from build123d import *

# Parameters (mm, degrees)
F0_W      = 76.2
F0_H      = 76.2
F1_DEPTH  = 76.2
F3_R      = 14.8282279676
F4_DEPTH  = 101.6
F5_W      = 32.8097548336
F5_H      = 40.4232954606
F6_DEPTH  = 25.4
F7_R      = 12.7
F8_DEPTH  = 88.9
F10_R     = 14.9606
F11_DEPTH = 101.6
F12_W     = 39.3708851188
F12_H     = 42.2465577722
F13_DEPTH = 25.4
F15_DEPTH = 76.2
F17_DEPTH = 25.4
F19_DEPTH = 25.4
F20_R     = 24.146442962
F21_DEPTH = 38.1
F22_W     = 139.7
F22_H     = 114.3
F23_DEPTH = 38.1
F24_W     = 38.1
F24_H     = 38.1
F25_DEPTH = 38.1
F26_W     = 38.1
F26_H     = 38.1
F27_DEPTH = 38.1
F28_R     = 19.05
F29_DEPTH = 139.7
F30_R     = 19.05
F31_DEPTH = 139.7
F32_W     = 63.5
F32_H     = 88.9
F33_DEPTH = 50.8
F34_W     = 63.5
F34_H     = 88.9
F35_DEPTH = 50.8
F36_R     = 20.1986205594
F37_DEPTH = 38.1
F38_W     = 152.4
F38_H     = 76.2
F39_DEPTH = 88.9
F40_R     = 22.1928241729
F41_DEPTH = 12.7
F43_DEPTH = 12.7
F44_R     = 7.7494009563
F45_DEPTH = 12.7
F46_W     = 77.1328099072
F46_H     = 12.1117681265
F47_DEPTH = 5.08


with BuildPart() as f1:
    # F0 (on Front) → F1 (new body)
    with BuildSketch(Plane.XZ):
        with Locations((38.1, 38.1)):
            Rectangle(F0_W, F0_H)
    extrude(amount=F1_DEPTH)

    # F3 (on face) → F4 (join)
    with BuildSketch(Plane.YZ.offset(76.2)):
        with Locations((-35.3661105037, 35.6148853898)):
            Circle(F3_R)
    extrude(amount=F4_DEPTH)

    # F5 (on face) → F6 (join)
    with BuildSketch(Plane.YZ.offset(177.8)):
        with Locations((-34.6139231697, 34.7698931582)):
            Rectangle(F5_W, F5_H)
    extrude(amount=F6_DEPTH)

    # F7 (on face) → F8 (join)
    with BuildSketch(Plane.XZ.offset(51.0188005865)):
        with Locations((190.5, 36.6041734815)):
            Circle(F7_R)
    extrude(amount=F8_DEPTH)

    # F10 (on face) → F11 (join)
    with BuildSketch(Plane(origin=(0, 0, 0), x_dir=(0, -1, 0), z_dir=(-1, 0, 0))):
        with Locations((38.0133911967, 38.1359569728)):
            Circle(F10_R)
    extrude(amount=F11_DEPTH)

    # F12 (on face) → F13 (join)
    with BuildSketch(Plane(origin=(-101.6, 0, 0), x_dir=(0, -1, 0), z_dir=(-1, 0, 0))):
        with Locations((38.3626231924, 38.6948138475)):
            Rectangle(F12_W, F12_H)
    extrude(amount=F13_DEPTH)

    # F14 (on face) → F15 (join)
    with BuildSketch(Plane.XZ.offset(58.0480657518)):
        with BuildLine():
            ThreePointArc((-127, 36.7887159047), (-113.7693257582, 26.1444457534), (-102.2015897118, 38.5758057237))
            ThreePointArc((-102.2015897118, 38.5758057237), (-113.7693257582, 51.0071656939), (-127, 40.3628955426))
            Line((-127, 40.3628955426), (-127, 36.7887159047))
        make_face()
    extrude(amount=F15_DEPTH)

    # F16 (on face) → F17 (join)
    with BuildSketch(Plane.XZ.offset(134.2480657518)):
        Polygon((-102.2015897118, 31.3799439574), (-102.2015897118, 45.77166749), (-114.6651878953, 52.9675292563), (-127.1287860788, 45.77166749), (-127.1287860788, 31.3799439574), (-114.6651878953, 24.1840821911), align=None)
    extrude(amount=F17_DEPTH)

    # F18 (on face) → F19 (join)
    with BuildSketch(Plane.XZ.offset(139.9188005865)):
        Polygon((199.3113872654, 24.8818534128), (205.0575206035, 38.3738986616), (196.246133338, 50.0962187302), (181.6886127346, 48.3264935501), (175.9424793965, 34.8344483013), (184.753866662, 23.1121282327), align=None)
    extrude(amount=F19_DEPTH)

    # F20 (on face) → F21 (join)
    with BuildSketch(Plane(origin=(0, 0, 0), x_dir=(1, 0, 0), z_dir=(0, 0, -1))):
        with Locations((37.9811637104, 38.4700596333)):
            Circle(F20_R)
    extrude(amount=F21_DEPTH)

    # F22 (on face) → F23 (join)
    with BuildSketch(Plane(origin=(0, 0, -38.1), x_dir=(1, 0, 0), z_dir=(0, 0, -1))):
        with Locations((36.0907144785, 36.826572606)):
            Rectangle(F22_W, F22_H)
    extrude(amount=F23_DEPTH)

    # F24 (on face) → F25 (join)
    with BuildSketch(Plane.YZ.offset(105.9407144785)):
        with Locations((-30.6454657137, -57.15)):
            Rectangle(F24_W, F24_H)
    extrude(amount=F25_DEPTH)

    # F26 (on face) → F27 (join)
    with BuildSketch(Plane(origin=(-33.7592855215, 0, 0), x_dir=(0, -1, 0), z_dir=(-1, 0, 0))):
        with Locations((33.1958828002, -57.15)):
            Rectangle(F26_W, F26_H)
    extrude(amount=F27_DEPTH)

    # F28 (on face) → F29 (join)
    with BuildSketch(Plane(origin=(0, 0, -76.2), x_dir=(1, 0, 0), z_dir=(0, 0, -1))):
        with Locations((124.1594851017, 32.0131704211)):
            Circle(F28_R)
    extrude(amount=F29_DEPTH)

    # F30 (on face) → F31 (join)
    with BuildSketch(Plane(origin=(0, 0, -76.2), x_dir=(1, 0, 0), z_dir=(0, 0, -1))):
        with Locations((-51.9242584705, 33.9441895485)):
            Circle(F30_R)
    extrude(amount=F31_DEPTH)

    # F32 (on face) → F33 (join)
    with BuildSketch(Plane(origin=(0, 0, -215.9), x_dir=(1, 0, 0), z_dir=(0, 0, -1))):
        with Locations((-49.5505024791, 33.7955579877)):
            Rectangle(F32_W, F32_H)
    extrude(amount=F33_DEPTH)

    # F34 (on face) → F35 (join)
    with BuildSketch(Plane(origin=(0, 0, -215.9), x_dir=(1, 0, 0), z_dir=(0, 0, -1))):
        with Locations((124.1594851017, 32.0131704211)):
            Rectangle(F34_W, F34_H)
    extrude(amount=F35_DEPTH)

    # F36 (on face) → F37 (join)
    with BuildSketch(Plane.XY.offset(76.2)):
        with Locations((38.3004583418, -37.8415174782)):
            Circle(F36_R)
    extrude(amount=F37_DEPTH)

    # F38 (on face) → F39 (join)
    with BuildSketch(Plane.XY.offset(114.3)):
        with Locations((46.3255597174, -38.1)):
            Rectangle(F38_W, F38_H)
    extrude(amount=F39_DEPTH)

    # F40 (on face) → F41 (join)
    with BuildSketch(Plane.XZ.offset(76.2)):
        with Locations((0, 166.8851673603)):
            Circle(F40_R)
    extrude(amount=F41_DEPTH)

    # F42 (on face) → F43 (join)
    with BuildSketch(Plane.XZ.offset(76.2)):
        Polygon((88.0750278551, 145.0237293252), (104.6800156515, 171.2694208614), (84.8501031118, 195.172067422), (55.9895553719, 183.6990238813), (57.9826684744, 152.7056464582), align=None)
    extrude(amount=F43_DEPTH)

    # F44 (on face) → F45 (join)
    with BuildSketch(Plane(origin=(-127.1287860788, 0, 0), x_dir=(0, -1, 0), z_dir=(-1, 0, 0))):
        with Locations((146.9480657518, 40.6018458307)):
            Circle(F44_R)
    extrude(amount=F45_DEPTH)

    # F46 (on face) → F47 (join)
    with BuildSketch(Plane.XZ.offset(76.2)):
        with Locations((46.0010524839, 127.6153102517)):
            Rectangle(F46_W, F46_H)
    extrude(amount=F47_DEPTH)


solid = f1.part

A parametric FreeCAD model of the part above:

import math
import FreeCAD as App
import Part
import Sketcher

V = App.Vector
Q = App.Units.Quantity


def add_polygon(sketch, points):
    """Adds a closed chain of lines whose ends are joined by coincident constraints."""
    first, n = sketch.GeometryCount, len(points)
    for a, b in zip(points, points[1:] + points[:1]):
        sketch.addGeometry(Part.LineSegment(App.Vector(*a, 0), App.Vector(*b, 0)), False)
    for i in range(n):
        sketch.addConstraint(Sketcher.Constraint("Coincident", first + i, 2, first + (i + 1) % n, 1))

doc = App.newDocument("Part")
body = doc.addObject("PartDesign::Body", "Body")

sketch1 = doc.addObject("Sketcher::SketchObject", "Sketch")
body.addObject(sketch1)
sketch1.AttachmentSupport = (doc.XZ_Plane, [""])
sketch1.MapMode = "FlatFace"
add_polygon(sketch1, [(0, 76.2), (0, 0), (76.2, 0), (76.2, 76.2)])
sketch1.addConstraint([
    Sketcher.Constraint("Vertical", 0),
    Sketcher.Constraint("Horizontal", 1),
    Sketcher.Constraint("Vertical", 2),
    Sketcher.Constraint("Horizontal", 3),
    Sketcher.Constraint("Coincident", 0, 2, -1, 1),
    Sketcher.Constraint("Equal", 3, 0),
    Sketcher.Constraint("DistanceX", 1, 1, 1, 2, Q("3 in")),
])
pad1 = doc.addObject("PartDesign::Pad", "Pad")
body.addObject(pad1)
pad1.Profile = sketch1
pad1.Length = Q("3 in")

sketch2 = doc.addObject("Sketcher::SketchObject", "Sketch001")
body.addObject(sketch2)
sketch2.AttachmentSupport = (doc.YZ_Plane, [""])
sketch2.MapMode = "FlatFace"
sketch2.AttachmentOffset = App.Placement(V(0, 0, 3 * 25.4), App.Rotation())
sketch2.addGeometry(Part.Circle(V(-35.366111, 35.614885, 0), V(0, 0, 1), 14.828228), False)
sketch2.addConstraint([
    Sketcher.Constraint("Diameter", 0, 29.656456),
    Sketcher.Constraint("DistanceX", 0, 3, -1, 1, 35.366111),
    Sketcher.Constraint("DistanceY", -1, 1, 0, 3, 35.614885),
])
pad2 = doc.addObject("PartDesign::Pad", "Pad001")
body.addObject(pad2)
pad2.Profile = sketch2
pad2.Length = Q("4 in")

sketch3 = doc.addObject("Sketcher::SketchObject", "Sketch002")
body.addObject(sketch3)
sketch3.AttachmentSupport = (doc.YZ_Plane, [""])
sketch3.MapMode = "FlatFace"
sketch3.AttachmentOffset = App.Placement(V(0, 0, 7 * 25.4), App.Rotation())
add_polygon(sketch3, [(-51.018801, 54.981541), (-51.018801, 14.558245), (-18.209046, 14.558245), (-18.209046, 54.981541)])
sketch3.addConstraint([
    Sketcher.Constraint("Vertical", 0),
    Sketcher.Constraint("Horizontal", 1),
    Sketcher.Constraint("Vertical", 2),
    Sketcher.Constraint("Horizontal", 3),
    Sketcher.Constraint("DistanceX", 0, 2, -1, 1, 51.018801),
    Sketcher.Constraint("DistanceX", 1, 1, 1, 2, 32.809755),
    Sketcher.Constraint("DistanceY", 0, 2, 0, 1, 40.423295),
    Sketcher.Constraint("DistanceY", -1, 1, 2, 2, 54.981541),
])
pad3 = doc.addObject("PartDesign::Pad", "Pad002")
body.addObject(pad3)
pad3.Profile = sketch3
pad3.Length = Q("1 in")

sketch4 = doc.addObject("Sketcher::SketchObject", "Sketch003")
body.addObject(sketch4)
sketch4.AttachmentSupport = (doc.XZ_Plane, [""])
sketch4.MapMode = "FlatFace"
sketch4.AttachmentOffset = App.Placement(V(0, 0, 51.018801), App.Rotation())
sketch4.addGeometry(Part.Circle(V(190.5, 36.604173, 0), V(0, 0, 1), 12.7), False)
sketch4.addConstraint([
    Sketcher.Constraint("Diameter", 0, Q("1 in")),
    Sketcher.Constraint("DistanceX", -1, 1, 0, 3, Q("7.5 in")),
    Sketcher.Constraint("DistanceY", -1, 1, 0, 3, 36.604173),
])
pad4 = doc.addObject("PartDesign::Pad", "Pad003")
body.addObject(pad4)
pad4.Profile = sketch4
pad4.Length = Q("3.5 in")

sketch5 = doc.addObject("Sketcher::SketchObject", "Sketch004")
body.addObject(sketch5)
sketch5.AttachmentSupport = (doc.YZ_Plane, [""])
sketch5.MapMode = "FlatFace"
sketch5.addGeometry(Part.Circle(V(-38.013391, 38.135957, 0), V(0, 0, 1), 14.9606), False)
sketch5.addConstraint([
    Sketcher.Constraint("Diameter", 0, Q("1.178 in")),
    Sketcher.Constraint("DistanceX", 0, 3, -1, 1, 38.013391),
    Sketcher.Constraint("DistanceY", -1, 1, 0, 3, 38.135957),
])
pad5 = doc.addObject("PartDesign::Pad", "Pad004")
body.addObject(pad5)
pad5.Profile = sketch5
pad5.Length = Q("4 in")
pad5.Reversed = True

sketch6 = doc.addObject("Sketcher::SketchObject", "Sketch005")
body.addObject(sketch6)
sketch6.AttachmentSupport = (doc.YZ_Plane, [""])
sketch6.MapMode = "FlatFace"
sketch6.AttachmentOffset = App.Placement(V(0, 0, -4 * 25.4), App.Rotation())
add_polygon(sketch6, [(-18.677181, 59.818093), (-18.677181, 17.571535), (-58.048066, 17.571535), (-58.048066, 59.818093)])
sketch6.addConstraint([
    Sketcher.Constraint("Vertical", 0),
    Sketcher.Constraint("Horizontal", 1),
    Sketcher.Constraint("Vertical", 2),
    Sketcher.Constraint("Horizontal", 3),
    Sketcher.Constraint("DistanceX", 1, 2, 1, 1, 39.370885),
    Sketcher.Constraint("DistanceY", 0, 2, 0, 1, 42.246558),
    Sketcher.Constraint("DistanceX", 0, 2, -1, 1, 18.677181),
    Sketcher.Constraint("DistanceY", -1, 1, 0, 2, 17.571535),
])
pad6 = doc.addObject("PartDesign::Pad", "Pad005")
body.addObject(pad6)
pad6.Profile = sketch6
pad6.Length = Q("1 in")
pad6.Reversed = True

sketch7 = doc.addObject("Sketcher::SketchObject", "Sketch006")
body.addObject(sketch7)
sketch7.AttachmentSupport = (doc.XZ_Plane, [""])
sketch7.MapMode = "FlatFace"
sketch7.AttachmentOffset = App.Placement(V(0, 0, 58.048066), App.Rotation())
sketch7.addGeometry([
    Part.ArcOfCircle(Part.Circle(V(-114.665188, 38.575806, 0), V(0, 0, 1), 12.463598), math.radians(-171.756246), math.radians(0)),
    Part.ArcOfCircle(Part.Circle(V(-114.665188, 38.575806, 0), V(0, 0, 1), 12.463598), math.radians(0), math.radians(171.756246)),
    Part.LineSegment(V(-127, 40.362896, 0), V(-127, 36.788716, 0)),
], False)
sketch7.addConstraint([
    Sketcher.Constraint("Tangent", 0, 2, 1, 1),
    Sketcher.Constraint("Coincident", 1, 2, 2, 1),
    Sketcher.Constraint("Coincident", 2, 2, 0, 1),
    Sketcher.Constraint("Vertical", 2),
    Sketcher.Constraint("Equal", 0, 1),
    Sketcher.Constraint("Horizontal", 1, 3, 0, 2),
    Sketcher.Constraint("DistanceX", 1, 2, -1, 1, Q("5 in")),
    Sketcher.Constraint("Radius", 0, 12.463598),
    Sketcher.Constraint("DistanceY", 2, 2, 2, 1, 3.57418),
    Sketcher.Constraint("DistanceY", -1, 1, 0, 3, 38.575806),
])
pad7 = doc.addObject("PartDesign::Pad", "Pad006")
body.addObject(pad7)
pad7.Profile = sketch7
pad7.Length = Q("3 in")

sketch8 = doc.addObject("Sketcher::SketchObject", "Sketch007")
body.addObject(sketch8)
sketch8.AttachmentSupport = (doc.XZ_Plane, [""])
sketch8.MapMode = "FlatFace"
sketch8.AttachmentOffset = App.Placement(V(0, 0, 134.248066), App.Rotation())
add_polygon(sketch8, [(-102.20159, 31.379944), (-102.20159, 45.771667), (-114.665188, 52.967529), (-127.128786, 45.771667), (-127.128786, 31.379944), (-114.665188, 24.184082)])
sketch8.addConstraint([
    Sketcher.Constraint("Vertical", 0),
    Sketcher.Constraint("Vertical", 3),
    Sketcher.Constraint("Parallel", 1, 4),
    Sketcher.Constraint("Parallel", 2, 5),
    Sketcher.Constraint("Horizontal", 0, 2, 2, 2),
    Sketcher.Constraint("Horizontal", 3, 2, 5, 2),
    Sketcher.Constraint("Vertical", 1, 2, 4, 2),
    Sketcher.Constraint("Angle", 1, Q("150 deg")),
    Sketcher.Constraint("DistanceX", 1, 2, 0, 2, 12.463598),
    Sketcher.Constraint("DistanceY", 0, 1, 0, 2, 14.391724),
    Sketcher.Constraint("DistanceX", 0, 2, -1, 1, 102.20159),
    Sketcher.Constraint("DistanceY", -1, 1, 1, 2, 52.967529),
])
pad8 = doc.addObject("PartDesign::Pad", "Pad007")
body.addObject(pad8)
pad8.Profile = sketch8
pad8.Length = Q("1 in")

sketch9 = doc.addObject("Sketcher::SketchObject", "Sketch008")
body.addObject(sketch9)
sketch9.AttachmentSupport = (doc.XZ_Plane, [""])
sketch9.MapMode = "FlatFace"
sketch9.AttachmentOffset = App.Placement(V(0, 0, 139.918801), App.Rotation())
add_polygon(sketch9, [(199.311387, 24.881853), (205.057521, 38.373899), (196.246133, 50.096219), (181.688613, 48.326494), (175.942479, 34.834448), (184.753867, 23.112128)])
sketch9.addConstraint([
    Sketcher.Constraint("Parallel", 0, 3),
    Sketcher.Constraint("Parallel", 1, 4),
    Sketcher.Constraint("Parallel", 2, 5),
    Sketcher.Constraint("Equal", 0, 1),
    Sketcher.Constraint("Equal", 1, 2),
    Sketcher.Constraint("Equal", 2, 3),
    Sketcher.Constraint("DistanceY", -1, 1, 0, 2, 38.373899),
    Sketcher.Constraint("DistanceX", -1, 1, 0, 2, 205.057521),
    Sketcher.Constraint("DistanceY", -1, 1, 1, 2, 50.096219),
    Sketcher.Constraint("DistanceX", -1, 1, 3, 2, 175.942479),
    Sketcher.Constraint("DistanceY", -1, 1, 3, 2, 34.834448),
    Sketcher.Constraint("DistanceX", 2, 2, 1, 2, 14.557521),
])
pad9 = doc.addObject("PartDesign::Pad", "Pad008")
body.addObject(pad9)
pad9.Profile = sketch9
pad9.Length = Q("1 in")

sketch10 = doc.addObject("Sketcher::SketchObject", "Sketch009")
body.addObject(sketch10)
sketch10.AttachmentSupport = (doc.XY_Plane, [""])
sketch10.MapMode = "FlatFace"
sketch10.addGeometry(Part.Circle(V(37.981164, -38.47006, 0), V(0, 0, 1), 24.146443), False)
sketch10.addConstraint([
    Sketcher.Constraint("Diameter", 0, 48.292886),
    Sketcher.Constraint("DistanceY", 0, 3, -1, 1, 38.47006),
    Sketcher.Constraint("DistanceX", -1, 1, 0, 3, 37.981164),
])
pad10 = doc.addObject("PartDesign::Pad", "Pad009")
body.addObject(pad10)
pad10.Profile = sketch10
pad10.Length = Q("1.5 in")
pad10.Reversed = True

sketch11 = doc.addObject("Sketcher::SketchObject", "Sketch010")
body.addObject(sketch11)
sketch11.AttachmentSupport = (doc.XY_Plane, [""])
sketch11.MapMode = "FlatFace"
sketch11.AttachmentOffset = App.Placement(V(0, 0, -1.5 * 25.4), App.Rotation())
add_polygon(sketch11, [(-33.759286, -93.976573), (-33.759286, 20.323427), (105.940714, 20.323427), (105.940714, -93.976573)])
sketch11.addConstraint([
    Sketcher.Constraint("Vertical", 0),
    Sketcher.Constraint("Horizontal", 1),
    Sketcher.Constraint("Vertical", 2),
    Sketcher.Constraint("Horizontal", 3),
    Sketcher.Constraint("DistanceX", 1, 1, 1, 2, Q("5.5 in")),
    Sketcher.Constraint("DistanceY", 0, 1, 0, 2, Q("4.5 in")),
    Sketcher.Constraint("DistanceX", 0, 2, -1, 1, 33.759286),
    Sketcher.Constraint("DistanceY", -1, 1, 0, 2, 20.323427),
])
pad11 = doc.addObject("PartDesign::Pad", "Pad010")
body.addObject(pad11)
pad11.Profile = sketch11
pad11.Length = Q("1.5 in")
pad11.Reversed = True

sketch12 = doc.addObject("Sketcher::SketchObject", "Sketch011")
body.addObject(sketch12)
sketch12.AttachmentSupport = (doc.YZ_Plane, [""])
sketch12.MapMode = "FlatFace"
sketch12.AttachmentOffset = App.Placement(V(0, 0, 105.940714), App.Rotation())
add_polygon(sketch12, [(-49.695466, -38.1), (-49.695466, -76.2), (-11.595466, -76.2), (-11.595466, -38.1)])
sketch12.addConstraint([
    Sketcher.Constraint("Vertical", 0),
    Sketcher.Constraint("Horizontal", 1),
    Sketcher.Constraint("Vertical", 2),
    Sketcher.Constraint("Horizontal", 3),
    Sketcher.Constraint("Equal", 3, 0),
    Sketcher.Constraint("DistanceX", 1, 1, 1, 2, Q("1.5 in")),
    Sketcher.Constraint("DistanceY", 0, 2, -1, 1, Q("3 in")),
    Sketcher.Constraint("DistanceX", 0, 2, -1, 1, 49.695466),
])
pad12 = doc.addObject("PartDesign::Pad", "Pad011")
body.addObject(pad12)
pad12.Profile = sketch12
pad12.Length = Q("1.5 in")

sketch13 = doc.addObject("Sketcher::SketchObject", "Sketch012")
body.addObject(sketch13)
sketch13.AttachmentSupport = (doc.YZ_Plane, [""])
sketch13.MapMode = "FlatFace"
sketch13.AttachmentOffset = App.Placement(V(0, 0, -33.759286), App.Rotation())
add_polygon(sketch13, [(-14.145883, -38.1), (-14.145883, -76.2), (-52.245883, -76.2), (-52.245883, -38.1)])
sketch13.addConstraint([
    Sketcher.Constraint("Vertical", 0),
    Sketcher.Constraint("Horizontal", 1),
    Sketcher.Constraint("Vertical", 2),
    Sketcher.Constraint("Horizontal", 3),
    Sketcher.Constraint("Equal", 3, 0),
    Sketcher.Constraint("DistanceX", 1, 2, 1, 1, Q("1.5 in")),
    Sketcher.Constraint("DistanceY", 0, 2, -1, 1, Q("3 in")),
    Sketcher.Constraint("DistanceX", 0, 2, -1, 1, 14.145883),
])
pad13 = doc.addObject("PartDesign::Pad", "Pad012")
body.addObject(pad13)
pad13.Profile = sketch13
pad13.Length = Q("1.5 in")
pad13.Reversed = True

sketch14 = doc.addObject("Sketcher::SketchObject", "Sketch013")
body.addObject(sketch14)
sketch14.AttachmentSupport = (doc.XY_Plane, [""])
sketch14.MapMode = "FlatFace"
sketch14.AttachmentOffset = App.Placement(V(0, 0, -3 * 25.4), App.Rotation())
sketch14.addGeometry(Part.Circle(V(124.159485, -32.01317, 0), V(0, 0, 1), 19.05), False)
sketch14.addConstraint([
    Sketcher.Constraint("Diameter", 0, Q("1.5 in")),
    Sketcher.Constraint("DistanceY", 0, 3, -1, 1, 32.01317),
    Sketcher.Constraint("DistanceX", -1, 1, 0, 3, 124.159485),
])
pad14 = doc.addObject("PartDesign::Pad", "Pad013")
body.addObject(pad14)
pad14.Profile = sketch14
pad14.Length = Q("5.5 in")
pad14.Reversed = True

sketch15 = doc.addObject("Sketcher::SketchObject", "Sketch014")
body.addObject(sketch15)
sketch15.AttachmentSupport = (doc.XY_Plane, [""])
sketch15.MapMode = "FlatFace"
sketch15.AttachmentOffset = App.Placement(V(0, 0, -3 * 25.4), App.Rotation())
sketch15.addGeometry(Part.Circle(V(-51.924258, -33.94419, 0), V(0, 0, 1), 19.05), False)
sketch15.addConstraint([
    Sketcher.Constraint("Diameter", 0, Q("1.5 in")),
    Sketcher.Constraint("DistanceX", 0, 3, -1, 1, 51.924258),
    Sketcher.Constraint("DistanceY", 0, 3, -1, 1, 33.94419),
])
pad15 = doc.addObject("PartDesign::Pad", "Pad014")
body.addObject(pad15)
pad15.Profile = sketch15
pad15.Length = Q("5.5 in")
pad15.Reversed = True

sketch16 = doc.addObject("Sketcher::SketchObject", "Sketch015")
body.addObject(sketch16)
sketch16.AttachmentSupport = (doc.XY_Plane, [""])
sketch16.MapMode = "FlatFace"
sketch16.AttachmentOffset = App.Placement(V(0, 0, -8.5 * 25.4), App.Rotation())
add_polygon(sketch16, [(-81.300502, -78.245558), (-81.300502, 10.654442), (-17.800502, 10.654442), (-17.800502, -78.245558)])
sketch16.addConstraint([
    Sketcher.Constraint("Vertical", 0),
    Sketcher.Constraint("Horizontal", 1),
    Sketcher.Constraint("Vertical", 2),
    Sketcher.Constraint("Horizontal", 3),
    Sketcher.Constraint("DistanceX", 1, 1, 1, 2, Q("2.5 in")),
    Sketcher.Constraint("DistanceY", 0, 1, 0, 2, Q("3.5 in")),
    Sketcher.Constraint("DistanceX", 0, 2, -1, 1, 81.300502),
    Sketcher.Constraint("DistanceY", -1, 1, 0, 2, 10.654442),
])
pad16 = doc.addObject("PartDesign::Pad", "Pad015")
body.addObject(pad16)
pad16.Profile = sketch16
pad16.Length = Q("2 in")
pad16.Reversed = True

sketch17 = doc.addObject("Sketcher::SketchObject", "Sketch016")
body.addObject(sketch17)
sketch17.AttachmentSupport = (doc.XY_Plane, [""])
sketch17.MapMode = "FlatFace"
sketch17.AttachmentOffset = App.Placement(V(0, 0, -8.5 * 25.4), App.Rotation())
add_polygon(sketch17, [(92.409485, -76.46317), (92.409485, 12.43683), (155.909485, 12.43683), (155.909485, -76.46317)])
sketch17.addConstraint([
    Sketcher.Constraint("Vertical", 0),
    Sketcher.Constraint("Horizontal", 1),
    Sketcher.Constraint("Vertical", 2),
    Sketcher.Constraint("Horizontal", 3),
    Sketcher.Constraint("DistanceX", 1, 1, 1, 2, Q("2.5 in")),
    Sketcher.Constraint("DistanceY", 0, 1, 0, 2, Q("3.5 in")),
    Sketcher.Constraint("DistanceY", -1, 1, 0, 2, 12.43683),
    Sketcher.Constraint("DistanceX", -1, 1, 0, 2, 92.409485),
])
pad17 = doc.addObject("PartDesign::Pad", "Pad016")
body.addObject(pad17)
pad17.Profile = sketch17
pad17.Length = Q("2 in")
pad17.Reversed = True

sketch18 = doc.addObject("Sketcher::SketchObject", "Sketch017")
body.addObject(sketch18)
sketch18.AttachmentSupport = (doc.XY_Plane, [""])
sketch18.MapMode = "FlatFace"
sketch18.AttachmentOffset = App.Placement(V(0, 0, 3 * 25.4), App.Rotation())
sketch18.addGeometry(Part.Circle(V(38.300458, -37.841517, 0), V(0, 0, 1), 20.198621), False)
sketch18.addConstraint([
    Sketcher.Constraint("Diameter", 0, 40.397241),
    Sketcher.Constraint("DistanceX", -1, 1, 0, 3, 38.300458),
    Sketcher.Constraint("DistanceY", 0, 3, -1, 1, 37.841517),
])
pad18 = doc.addObject("PartDesign::Pad", "Pad017")
body.addObject(pad18)
pad18.Profile = sketch18
pad18.Length = Q("1.5 in")

sketch19 = doc.addObject("Sketcher::SketchObject", "Sketch018")
body.addObject(sketch19)
sketch19.AttachmentSupport = (doc.XY_Plane, [""])
sketch19.MapMode = "FlatFace"
sketch19.AttachmentOffset = App.Placement(V(0, 0, 4.5 * 25.4), App.Rotation())
add_polygon(sketch19, [(-29.87444, 0), (-29.87444, -76.2), (122.52556, -76.2), (122.52556, 0)])
sketch19.addConstraint([
    Sketcher.Constraint("Vertical", 0),
    Sketcher.Constraint("Horizontal", 1),
    Sketcher.Constraint("Vertical", 2),
    Sketcher.Constraint("Horizontal", 3),
    Sketcher.Constraint("PointOnObject", 2, 2, -1),
    Sketcher.Constraint("DistanceX", 1, 1, 1, 2, Q("6 in")),
    Sketcher.Constraint("DistanceY", 0, 2, 0, 1, Q("3 in")),
    Sketcher.Constraint("DistanceX", 0, 2, -1, 1, 29.87444),
])
pad19 = doc.addObject("PartDesign::Pad", "Pad018")
body.addObject(pad19)
pad19.Profile = sketch19
pad19.Length = Q("3.5 in")

sketch20 = doc.addObject("Sketcher::SketchObject", "Sketch019")
body.addObject(sketch20)
sketch20.AttachmentSupport = (doc.XZ_Plane, [""])
sketch20.MapMode = "FlatFace"
sketch20.AttachmentOffset = App.Placement(V(0, 0, 3 * 25.4), App.Rotation())
sketch20.addGeometry(Part.Circle(V(0, 166.885167, 0), V(0, 0, 1), 22.192824), False)
sketch20.addConstraint([
    Sketcher.Constraint("PointOnObject", 0, 3, -2),
    Sketcher.Constraint("Diameter", 0, 44.385648),
    Sketcher.Constraint("DistanceY", -1, 1, 0, 3, 166.885167),
])
pad20 = doc.addObject("PartDesign::Pad", "Pad019")
body.addObject(pad20)
pad20.Profile = sketch20
pad20.Length = Q("0.5 in")

sketch21 = doc.addObject("Sketcher::SketchObject", "Sketch020")
body.addObject(sketch21)
sketch21.AttachmentSupport = (doc.XZ_Plane, [""])
sketch21.MapMode = "FlatFace"
sketch21.AttachmentOffset = App.Placement(V(0, 0, 3 * 25.4), App.Rotation())
add_polygon(sketch21, [(88.075028, 145.023729), (104.680016, 171.269421), (84.850103, 195.172067), (55.989555, 183.699024), (57.982668, 152.705646)])
sketch21.addConstraint([
    Sketcher.Constraint("Equal", 0, 1),
    Sketcher.Constraint("Equal", 1, 2),
    Sketcher.Constraint("Equal", 2, 3),
    Sketcher.Constraint("Equal", 3, 4),
    Sketcher.Constraint("DistanceY", -1, 1, 0, 2, 171.269421),
    Sketcher.Constraint("DistanceX", -1, 1, 3, 2, 57.982668),
    Sketcher.Constraint("DistanceY", -1, 1, 4, 2, 145.023729),
    Sketcher.Constraint("DistanceX", 2, 2, 0, 2, 48.69046),
    Sketcher.Constraint("DistanceY", 3, 2, 1, 2, 42.466421),
    Sketcher.Constraint("DistanceX", 3, 2, 4, 2, 30.092359),
])
pad21 = doc.addObject("PartDesign::Pad", "Pad020")
body.addObject(pad21)
pad21.Profile = sketch21
pad21.Length = Q("0.5 in")

sketch22 = doc.addObject("Sketcher::SketchObject", "Sketch021")
body.addObject(sketch22)
sketch22.AttachmentSupport = (doc.YZ_Plane, [""])
sketch22.MapMode = "FlatFace"
sketch22.AttachmentOffset = App.Placement(V(0, 0, -127.128786), App.Rotation())
sketch22.addGeometry(Part.Circle(V(-146.948066, 40.601846, 0), V(0, 0, 1), 7.749401), False)
sketch22.addConstraint([
    Sketcher.Constraint("Diameter", 0, 15.498802),
    Sketcher.Constraint("DistanceX", 0, 3, -1, 1, 146.948066),
    Sketcher.Constraint("DistanceY", -1, 1, 0, 3, 40.601846),
])
pad22 = doc.addObject("PartDesign::Pad", "Pad021")
body.addObject(pad22)
pad22.Profile = sketch22
pad22.Length = Q("0.5 in")
pad22.Reversed = True

sketch23 = doc.addObject("Sketcher::SketchObject", "Sketch022")
body.addObject(sketch23)
sketch23.AttachmentSupport = (doc.XZ_Plane, [""])
sketch23.MapMode = "FlatFace"
sketch23.AttachmentOffset = App.Placement(V(0, 0, 3 * 25.4), App.Rotation())
add_polygon(sketch23, [(7.434648, 133.671194), (7.434648, 121.559426), (84.567457, 121.559426), (84.567457, 133.671194)])
sketch23.addConstraint([
    Sketcher.Constraint("Vertical", 0),
    Sketcher.Constraint("Horizontal", 1),
    Sketcher.Constraint("Vertical", 2),
    Sketcher.Constraint("Horizontal", 3),
    Sketcher.Constraint("DistanceX", 1, 1, 1, 2, 77.13281),
    Sketcher.Constraint("DistanceY", 0, 2, 0, 1, 12.111768),
    Sketcher.Constraint("DistanceX", -1, 1, 0, 2, 7.434648),
    Sketcher.Constraint("DistanceY", -1, 1, 0, 2, 121.559426),
])
pad23 = doc.addObject("PartDesign::Pad", "Pad022")
body.addObject(pad23)
pad23.Profile = sketch23
pad23.Length = Q("0.2 in")

doc.recompute()
